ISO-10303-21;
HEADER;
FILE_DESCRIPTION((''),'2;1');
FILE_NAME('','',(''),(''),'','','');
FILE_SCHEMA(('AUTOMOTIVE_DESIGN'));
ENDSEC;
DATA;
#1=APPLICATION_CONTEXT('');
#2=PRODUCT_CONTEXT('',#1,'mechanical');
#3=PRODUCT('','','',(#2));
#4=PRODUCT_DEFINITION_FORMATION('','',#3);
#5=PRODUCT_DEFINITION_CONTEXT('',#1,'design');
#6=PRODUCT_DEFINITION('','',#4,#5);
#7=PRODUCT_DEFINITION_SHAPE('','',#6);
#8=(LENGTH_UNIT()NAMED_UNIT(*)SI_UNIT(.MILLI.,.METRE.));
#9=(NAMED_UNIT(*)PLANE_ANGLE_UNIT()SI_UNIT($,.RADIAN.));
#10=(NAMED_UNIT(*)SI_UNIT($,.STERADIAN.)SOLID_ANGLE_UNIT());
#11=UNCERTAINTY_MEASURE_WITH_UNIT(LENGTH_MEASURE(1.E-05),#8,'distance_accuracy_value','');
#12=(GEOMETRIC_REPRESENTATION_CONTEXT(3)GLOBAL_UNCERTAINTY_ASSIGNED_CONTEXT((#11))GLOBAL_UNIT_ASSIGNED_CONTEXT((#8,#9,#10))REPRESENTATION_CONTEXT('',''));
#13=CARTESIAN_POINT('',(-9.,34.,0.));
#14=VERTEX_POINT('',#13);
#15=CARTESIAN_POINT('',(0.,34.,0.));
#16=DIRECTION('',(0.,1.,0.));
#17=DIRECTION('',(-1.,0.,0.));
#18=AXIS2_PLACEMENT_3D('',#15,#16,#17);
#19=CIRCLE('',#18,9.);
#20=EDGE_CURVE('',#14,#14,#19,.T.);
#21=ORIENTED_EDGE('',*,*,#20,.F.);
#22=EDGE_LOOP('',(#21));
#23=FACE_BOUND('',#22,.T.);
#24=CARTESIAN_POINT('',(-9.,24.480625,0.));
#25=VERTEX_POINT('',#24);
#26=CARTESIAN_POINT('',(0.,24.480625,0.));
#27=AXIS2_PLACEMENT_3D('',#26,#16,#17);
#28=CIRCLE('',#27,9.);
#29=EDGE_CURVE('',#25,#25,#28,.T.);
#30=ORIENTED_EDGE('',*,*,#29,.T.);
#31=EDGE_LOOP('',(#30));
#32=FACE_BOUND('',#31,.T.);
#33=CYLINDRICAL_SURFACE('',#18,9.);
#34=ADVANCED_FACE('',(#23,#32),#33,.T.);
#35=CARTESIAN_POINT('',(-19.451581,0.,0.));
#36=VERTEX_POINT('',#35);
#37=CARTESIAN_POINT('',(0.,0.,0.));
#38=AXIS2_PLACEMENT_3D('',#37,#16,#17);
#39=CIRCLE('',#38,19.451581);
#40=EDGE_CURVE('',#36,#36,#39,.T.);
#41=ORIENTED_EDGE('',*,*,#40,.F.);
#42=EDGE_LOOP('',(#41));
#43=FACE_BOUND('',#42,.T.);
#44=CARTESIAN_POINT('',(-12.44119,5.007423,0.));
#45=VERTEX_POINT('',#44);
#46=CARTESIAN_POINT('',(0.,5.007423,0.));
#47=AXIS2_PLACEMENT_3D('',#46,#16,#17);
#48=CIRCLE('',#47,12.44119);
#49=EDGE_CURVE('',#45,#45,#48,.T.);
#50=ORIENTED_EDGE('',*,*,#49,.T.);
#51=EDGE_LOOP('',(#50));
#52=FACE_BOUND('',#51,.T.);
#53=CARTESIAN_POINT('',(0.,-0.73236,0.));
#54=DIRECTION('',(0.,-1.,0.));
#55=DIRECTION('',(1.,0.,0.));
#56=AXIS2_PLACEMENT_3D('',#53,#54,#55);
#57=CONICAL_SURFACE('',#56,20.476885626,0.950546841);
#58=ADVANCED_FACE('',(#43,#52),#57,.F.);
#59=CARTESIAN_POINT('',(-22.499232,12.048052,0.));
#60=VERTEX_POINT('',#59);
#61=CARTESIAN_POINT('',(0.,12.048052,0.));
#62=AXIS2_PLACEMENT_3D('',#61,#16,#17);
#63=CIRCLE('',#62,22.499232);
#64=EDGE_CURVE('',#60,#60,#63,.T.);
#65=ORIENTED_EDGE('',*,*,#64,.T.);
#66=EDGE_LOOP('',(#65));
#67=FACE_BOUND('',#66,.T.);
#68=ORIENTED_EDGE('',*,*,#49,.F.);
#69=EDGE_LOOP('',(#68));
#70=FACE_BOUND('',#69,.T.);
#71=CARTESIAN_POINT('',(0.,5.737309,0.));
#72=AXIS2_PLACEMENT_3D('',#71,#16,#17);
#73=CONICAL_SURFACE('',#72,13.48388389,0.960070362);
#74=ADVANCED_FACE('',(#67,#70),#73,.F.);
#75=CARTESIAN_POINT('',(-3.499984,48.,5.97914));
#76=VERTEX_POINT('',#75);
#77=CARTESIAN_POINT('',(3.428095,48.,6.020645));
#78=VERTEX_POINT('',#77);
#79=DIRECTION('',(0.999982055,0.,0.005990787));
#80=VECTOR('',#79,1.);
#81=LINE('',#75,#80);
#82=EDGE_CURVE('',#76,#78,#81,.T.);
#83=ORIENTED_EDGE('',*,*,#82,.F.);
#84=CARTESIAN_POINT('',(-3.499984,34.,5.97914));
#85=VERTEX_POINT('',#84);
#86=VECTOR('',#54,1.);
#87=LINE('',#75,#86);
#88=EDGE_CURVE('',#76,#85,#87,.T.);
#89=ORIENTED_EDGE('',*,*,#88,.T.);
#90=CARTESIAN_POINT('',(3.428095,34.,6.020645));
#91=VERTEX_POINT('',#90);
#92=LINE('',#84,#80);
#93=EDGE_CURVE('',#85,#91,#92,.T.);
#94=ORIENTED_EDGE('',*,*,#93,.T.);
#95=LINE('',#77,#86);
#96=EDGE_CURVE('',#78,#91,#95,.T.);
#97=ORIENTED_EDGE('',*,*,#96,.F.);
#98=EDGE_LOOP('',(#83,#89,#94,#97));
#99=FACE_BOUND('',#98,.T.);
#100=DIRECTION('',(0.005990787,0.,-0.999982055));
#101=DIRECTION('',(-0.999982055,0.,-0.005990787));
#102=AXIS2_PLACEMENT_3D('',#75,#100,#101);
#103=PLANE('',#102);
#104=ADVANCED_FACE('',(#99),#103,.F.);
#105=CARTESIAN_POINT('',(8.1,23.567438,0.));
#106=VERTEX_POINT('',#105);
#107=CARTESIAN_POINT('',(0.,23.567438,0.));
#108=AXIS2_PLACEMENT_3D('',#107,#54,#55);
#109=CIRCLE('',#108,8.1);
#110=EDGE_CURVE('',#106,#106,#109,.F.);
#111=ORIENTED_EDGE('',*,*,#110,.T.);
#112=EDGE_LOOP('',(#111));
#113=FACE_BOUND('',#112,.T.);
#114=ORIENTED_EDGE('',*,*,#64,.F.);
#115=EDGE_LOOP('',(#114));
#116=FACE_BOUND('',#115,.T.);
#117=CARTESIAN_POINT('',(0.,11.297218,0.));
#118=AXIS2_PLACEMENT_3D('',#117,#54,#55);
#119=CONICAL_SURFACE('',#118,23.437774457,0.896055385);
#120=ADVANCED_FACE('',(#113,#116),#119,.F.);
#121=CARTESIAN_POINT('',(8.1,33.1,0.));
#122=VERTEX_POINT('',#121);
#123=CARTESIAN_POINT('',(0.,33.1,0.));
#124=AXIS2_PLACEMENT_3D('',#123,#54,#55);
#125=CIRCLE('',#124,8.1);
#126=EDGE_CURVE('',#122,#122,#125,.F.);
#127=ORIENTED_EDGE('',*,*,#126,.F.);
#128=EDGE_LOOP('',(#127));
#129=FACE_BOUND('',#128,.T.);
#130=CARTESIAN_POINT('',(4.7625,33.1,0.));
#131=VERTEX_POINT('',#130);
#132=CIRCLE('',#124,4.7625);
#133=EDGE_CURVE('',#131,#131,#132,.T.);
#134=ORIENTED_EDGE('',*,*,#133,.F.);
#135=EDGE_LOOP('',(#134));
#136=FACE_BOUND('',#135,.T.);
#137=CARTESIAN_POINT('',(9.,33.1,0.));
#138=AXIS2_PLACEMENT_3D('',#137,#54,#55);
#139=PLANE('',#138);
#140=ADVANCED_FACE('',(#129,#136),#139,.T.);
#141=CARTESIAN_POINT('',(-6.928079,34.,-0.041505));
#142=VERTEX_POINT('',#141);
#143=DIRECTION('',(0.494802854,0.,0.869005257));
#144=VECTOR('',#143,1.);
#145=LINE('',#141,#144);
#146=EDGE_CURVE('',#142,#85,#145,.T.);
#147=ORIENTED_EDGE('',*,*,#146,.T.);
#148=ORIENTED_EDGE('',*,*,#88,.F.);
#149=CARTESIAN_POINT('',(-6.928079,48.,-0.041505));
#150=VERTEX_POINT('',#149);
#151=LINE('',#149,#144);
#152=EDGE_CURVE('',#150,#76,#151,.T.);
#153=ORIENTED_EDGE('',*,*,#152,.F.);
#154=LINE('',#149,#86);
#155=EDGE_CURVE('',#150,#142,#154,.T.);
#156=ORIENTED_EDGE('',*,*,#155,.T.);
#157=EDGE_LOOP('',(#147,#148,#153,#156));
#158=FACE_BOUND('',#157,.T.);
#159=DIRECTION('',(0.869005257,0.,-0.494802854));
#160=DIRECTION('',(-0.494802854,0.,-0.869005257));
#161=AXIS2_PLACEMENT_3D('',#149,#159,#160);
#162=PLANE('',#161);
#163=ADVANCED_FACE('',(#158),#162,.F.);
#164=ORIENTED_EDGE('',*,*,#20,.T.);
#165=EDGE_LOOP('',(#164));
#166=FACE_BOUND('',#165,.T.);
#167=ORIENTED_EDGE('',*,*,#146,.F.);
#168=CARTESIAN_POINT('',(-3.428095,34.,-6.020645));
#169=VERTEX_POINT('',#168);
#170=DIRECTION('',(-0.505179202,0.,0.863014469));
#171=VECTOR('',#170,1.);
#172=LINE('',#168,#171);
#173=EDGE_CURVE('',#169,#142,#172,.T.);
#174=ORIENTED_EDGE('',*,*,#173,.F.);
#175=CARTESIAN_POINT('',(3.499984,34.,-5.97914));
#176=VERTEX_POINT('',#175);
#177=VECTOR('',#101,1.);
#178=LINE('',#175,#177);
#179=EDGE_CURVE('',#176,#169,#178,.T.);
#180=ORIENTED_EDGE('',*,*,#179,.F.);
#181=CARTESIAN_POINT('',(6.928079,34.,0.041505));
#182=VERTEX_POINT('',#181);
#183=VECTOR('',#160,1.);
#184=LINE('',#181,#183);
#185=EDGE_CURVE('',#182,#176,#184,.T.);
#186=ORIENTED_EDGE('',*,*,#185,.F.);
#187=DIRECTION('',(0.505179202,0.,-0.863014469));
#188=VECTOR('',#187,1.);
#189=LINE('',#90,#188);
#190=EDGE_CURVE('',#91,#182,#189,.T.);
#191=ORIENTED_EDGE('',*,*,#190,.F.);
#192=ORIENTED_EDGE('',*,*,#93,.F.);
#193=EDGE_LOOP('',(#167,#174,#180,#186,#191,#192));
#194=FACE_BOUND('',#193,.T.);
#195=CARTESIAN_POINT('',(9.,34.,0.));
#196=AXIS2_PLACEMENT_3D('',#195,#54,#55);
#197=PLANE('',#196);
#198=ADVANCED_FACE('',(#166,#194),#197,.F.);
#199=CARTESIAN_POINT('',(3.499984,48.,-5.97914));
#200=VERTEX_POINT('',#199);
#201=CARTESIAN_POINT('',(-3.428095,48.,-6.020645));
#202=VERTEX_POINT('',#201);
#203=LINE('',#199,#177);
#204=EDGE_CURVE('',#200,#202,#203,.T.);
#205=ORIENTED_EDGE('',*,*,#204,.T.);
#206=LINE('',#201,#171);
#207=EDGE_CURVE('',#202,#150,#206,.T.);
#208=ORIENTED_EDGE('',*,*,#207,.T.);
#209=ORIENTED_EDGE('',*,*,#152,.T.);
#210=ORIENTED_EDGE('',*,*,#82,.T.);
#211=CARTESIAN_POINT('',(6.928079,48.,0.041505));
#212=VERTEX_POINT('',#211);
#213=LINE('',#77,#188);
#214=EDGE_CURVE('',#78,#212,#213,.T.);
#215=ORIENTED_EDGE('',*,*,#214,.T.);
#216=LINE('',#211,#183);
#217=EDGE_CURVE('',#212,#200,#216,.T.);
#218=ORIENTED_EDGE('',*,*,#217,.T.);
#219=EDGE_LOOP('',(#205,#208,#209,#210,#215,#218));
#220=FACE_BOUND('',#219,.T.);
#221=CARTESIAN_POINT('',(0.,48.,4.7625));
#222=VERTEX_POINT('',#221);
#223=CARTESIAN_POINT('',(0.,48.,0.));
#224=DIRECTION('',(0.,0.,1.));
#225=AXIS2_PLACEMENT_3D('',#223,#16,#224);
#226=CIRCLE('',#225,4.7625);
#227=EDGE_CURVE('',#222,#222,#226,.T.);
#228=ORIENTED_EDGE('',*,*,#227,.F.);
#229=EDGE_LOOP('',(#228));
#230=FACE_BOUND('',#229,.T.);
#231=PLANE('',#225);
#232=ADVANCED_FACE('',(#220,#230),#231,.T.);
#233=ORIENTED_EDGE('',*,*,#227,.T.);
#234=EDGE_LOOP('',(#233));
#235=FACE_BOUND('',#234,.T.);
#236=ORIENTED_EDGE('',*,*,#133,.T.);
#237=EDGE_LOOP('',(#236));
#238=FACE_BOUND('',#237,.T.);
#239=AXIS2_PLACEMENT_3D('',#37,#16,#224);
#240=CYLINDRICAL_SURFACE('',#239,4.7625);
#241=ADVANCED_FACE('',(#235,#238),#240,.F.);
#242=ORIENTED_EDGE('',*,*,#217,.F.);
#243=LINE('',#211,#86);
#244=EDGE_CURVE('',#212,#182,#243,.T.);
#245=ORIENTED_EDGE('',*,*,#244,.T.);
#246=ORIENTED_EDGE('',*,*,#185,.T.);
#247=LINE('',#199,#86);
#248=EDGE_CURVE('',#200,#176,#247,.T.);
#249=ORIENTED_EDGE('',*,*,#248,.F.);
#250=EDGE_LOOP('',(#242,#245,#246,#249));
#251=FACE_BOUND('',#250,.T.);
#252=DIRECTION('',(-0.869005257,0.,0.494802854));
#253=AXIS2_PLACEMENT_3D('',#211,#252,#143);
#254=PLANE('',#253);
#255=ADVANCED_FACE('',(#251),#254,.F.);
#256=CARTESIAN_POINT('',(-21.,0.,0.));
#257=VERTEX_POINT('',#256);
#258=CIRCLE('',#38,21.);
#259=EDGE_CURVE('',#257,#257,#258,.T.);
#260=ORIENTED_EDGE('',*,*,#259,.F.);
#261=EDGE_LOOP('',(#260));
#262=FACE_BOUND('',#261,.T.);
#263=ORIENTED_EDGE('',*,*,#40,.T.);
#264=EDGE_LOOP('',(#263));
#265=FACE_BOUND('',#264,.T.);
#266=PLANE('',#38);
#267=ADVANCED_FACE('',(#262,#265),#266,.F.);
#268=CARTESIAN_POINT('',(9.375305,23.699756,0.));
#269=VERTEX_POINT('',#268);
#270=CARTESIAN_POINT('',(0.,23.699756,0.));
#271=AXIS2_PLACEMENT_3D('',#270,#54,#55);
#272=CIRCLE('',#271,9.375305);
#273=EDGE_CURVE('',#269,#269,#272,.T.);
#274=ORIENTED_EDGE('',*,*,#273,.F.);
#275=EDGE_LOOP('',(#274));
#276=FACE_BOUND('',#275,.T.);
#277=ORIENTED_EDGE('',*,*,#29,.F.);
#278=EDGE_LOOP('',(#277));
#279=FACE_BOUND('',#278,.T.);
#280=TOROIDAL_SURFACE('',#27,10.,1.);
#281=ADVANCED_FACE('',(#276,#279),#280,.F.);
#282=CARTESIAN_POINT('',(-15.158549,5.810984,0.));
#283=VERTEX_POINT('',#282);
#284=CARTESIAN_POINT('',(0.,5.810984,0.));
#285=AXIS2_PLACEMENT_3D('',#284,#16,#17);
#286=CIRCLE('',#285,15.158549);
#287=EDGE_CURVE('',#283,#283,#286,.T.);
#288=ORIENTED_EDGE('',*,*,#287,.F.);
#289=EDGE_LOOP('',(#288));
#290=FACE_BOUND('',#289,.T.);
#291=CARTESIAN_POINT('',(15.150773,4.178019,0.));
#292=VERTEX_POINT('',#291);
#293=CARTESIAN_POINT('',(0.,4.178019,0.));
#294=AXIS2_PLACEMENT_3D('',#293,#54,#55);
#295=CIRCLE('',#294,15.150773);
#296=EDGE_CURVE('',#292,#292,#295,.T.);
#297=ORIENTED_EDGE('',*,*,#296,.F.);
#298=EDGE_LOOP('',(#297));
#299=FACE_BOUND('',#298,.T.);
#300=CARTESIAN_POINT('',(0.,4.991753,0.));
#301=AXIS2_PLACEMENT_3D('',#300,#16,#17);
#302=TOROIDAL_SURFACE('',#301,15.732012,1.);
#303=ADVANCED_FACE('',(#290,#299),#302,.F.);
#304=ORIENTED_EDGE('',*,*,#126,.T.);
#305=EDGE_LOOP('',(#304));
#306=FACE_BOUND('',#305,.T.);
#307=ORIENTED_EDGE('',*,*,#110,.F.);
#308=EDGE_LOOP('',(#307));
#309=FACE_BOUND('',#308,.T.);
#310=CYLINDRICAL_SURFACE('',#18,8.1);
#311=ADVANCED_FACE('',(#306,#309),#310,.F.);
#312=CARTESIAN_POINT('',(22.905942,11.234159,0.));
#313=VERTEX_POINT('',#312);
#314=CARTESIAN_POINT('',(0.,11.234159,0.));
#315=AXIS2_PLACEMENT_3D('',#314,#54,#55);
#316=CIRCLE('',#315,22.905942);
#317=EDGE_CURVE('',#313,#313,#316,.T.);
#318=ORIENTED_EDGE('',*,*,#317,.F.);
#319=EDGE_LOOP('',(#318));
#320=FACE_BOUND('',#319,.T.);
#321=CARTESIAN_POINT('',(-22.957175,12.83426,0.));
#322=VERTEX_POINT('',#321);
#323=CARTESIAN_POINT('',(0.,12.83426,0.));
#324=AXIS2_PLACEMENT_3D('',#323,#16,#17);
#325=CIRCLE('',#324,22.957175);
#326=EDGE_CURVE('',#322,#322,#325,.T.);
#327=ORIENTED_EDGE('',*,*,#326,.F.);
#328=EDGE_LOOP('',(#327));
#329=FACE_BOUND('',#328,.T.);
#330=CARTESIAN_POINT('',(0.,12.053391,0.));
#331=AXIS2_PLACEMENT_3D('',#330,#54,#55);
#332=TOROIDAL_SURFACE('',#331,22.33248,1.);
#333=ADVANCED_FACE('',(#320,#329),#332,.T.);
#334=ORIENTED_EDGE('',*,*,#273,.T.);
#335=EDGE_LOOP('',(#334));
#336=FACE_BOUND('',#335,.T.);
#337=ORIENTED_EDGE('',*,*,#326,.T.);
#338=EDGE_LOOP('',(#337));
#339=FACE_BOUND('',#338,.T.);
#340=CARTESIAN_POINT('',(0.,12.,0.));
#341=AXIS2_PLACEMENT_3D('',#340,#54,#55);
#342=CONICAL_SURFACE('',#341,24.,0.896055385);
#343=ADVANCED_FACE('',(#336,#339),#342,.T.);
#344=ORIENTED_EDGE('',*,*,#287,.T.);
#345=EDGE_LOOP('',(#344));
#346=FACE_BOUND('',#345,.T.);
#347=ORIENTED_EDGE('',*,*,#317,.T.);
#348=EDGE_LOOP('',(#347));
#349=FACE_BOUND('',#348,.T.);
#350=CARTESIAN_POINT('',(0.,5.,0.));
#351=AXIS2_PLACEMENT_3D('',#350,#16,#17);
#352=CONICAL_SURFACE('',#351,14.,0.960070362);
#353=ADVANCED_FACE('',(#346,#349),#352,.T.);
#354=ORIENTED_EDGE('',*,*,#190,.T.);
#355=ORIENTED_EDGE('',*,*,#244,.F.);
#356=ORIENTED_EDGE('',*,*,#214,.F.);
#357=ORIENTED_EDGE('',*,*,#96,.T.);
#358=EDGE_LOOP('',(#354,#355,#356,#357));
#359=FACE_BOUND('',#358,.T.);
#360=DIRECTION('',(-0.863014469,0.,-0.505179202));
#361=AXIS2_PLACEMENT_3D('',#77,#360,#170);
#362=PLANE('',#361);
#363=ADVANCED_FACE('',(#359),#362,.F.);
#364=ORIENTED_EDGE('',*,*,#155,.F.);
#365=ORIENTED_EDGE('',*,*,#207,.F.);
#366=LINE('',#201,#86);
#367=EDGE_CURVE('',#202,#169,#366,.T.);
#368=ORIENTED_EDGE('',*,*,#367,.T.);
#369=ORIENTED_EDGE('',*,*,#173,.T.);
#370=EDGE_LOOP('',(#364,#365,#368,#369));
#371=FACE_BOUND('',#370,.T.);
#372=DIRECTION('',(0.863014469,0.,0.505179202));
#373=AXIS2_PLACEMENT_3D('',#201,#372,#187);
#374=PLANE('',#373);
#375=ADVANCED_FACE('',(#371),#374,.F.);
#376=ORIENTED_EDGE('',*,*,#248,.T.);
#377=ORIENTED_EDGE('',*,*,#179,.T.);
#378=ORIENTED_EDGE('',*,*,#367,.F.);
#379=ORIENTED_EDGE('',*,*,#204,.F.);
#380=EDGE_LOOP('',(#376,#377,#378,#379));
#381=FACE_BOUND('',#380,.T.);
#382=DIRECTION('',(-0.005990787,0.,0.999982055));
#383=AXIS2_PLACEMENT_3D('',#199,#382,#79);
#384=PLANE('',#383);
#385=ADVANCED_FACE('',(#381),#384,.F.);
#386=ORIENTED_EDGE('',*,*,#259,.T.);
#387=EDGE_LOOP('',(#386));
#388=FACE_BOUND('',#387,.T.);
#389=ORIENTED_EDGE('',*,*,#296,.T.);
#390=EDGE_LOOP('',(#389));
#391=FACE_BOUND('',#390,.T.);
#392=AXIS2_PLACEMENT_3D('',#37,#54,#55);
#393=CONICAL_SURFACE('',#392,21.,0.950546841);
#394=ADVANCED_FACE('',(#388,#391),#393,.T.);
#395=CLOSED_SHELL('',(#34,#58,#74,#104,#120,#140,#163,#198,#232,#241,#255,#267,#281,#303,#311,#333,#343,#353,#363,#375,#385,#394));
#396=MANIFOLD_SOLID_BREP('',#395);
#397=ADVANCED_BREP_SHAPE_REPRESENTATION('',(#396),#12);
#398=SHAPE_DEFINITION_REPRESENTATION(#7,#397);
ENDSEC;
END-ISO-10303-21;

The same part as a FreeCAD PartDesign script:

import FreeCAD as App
import Part
import Sketcher


def edges_at(feature, points):
    """Names of the edges that pass closest to the given points."""
    edges = feature.Shape.Edges
    near = lambda p: min(range(len(edges)), key=lambda i: edges[i].distToShape(Part.Vertex(*p))[0])
    return sorted({f"Edge{near(p) + 1}" for p in points})


def faces_at(feature, points):
    """Names of the faces that lie closest to the given points."""
    faces = feature.Shape.Faces
    near = lambda p: min(range(len(faces)), key=lambda i: faces[i].distToShape(Part.Vertex(*p))[0])
    return sorted({f"Face{near(p) + 1}" for p in points})

doc = App.newDocument("Part")
body = doc.addObject("PartDesign::Body", "Body")

sketch1 = body.newObject("Sketcher::SketchObject", "Sketch")
sketch1.AttachmentSupport = (doc.getObject("XY_Plane"), [""])
sketch1.MapMode = "FlatFace"
sketch1.addGeometry([
    Part.LineSegment(App.Vector(0, 0, 0), App.Vector(21, 0, 0)),
    Part.LineSegment(App.Vector(21, 0, 0), App.Vector(14, 5, 0)),
    Part.LineSegment(App.Vector(14, 5, 0), App.Vector(24, 12, 0)),
    Part.LineSegment(App.Vector(24, 12, 0), App.Vector(9, 24, 0)),
    Part.LineSegment(App.Vector(9, 24, 0), App.Vector(9, 34, 0)),
    Part.LineSegment(App.Vector(9, 34, 0), App.Vector(0, 34, 0)),
    Part.LineSegment(App.Vector(0, 34, 0), App.Vector(0, 0, 0)),
], False)
sketch1.addConstraint([
    Sketcher.Constraint("Coincident", 0, 2, 1, 1),
    Sketcher.Constraint("Coincident", 1, 2, 2, 1),
    Sketcher.Constraint("Coincident", 2, 2, 3, 1),
    Sketcher.Constraint("Coincident", 3, 2, 4, 1),
    Sketcher.Constraint("Coincident", 4, 2, 5, 1),
    Sketcher.Constraint("Coincident", 5, 2, 6, 1),
    Sketcher.Constraint("Coincident", 6, 2, 0, 1),
    Sketcher.Constraint("Horizontal", 0),
    Sketcher.Constraint("Vertical", 4),
    Sketcher.Constraint("Horizontal", 5),
    Sketcher.Constraint("Vertical", 6),
    Sketcher.Constraint("Coincident", 6, 2, -1, 1),
    Sketcher.Constraint("DistanceX", 0, 1, 0, 2, 21.0),
    Sketcher.Constraint("DistanceX", 5, 2, 5, 1, 9.0),
    Sketcher.Constraint("DistanceY", 4, 1, 4, 2, 10.0),
    Sketcher.Constraint("DistanceY", 6, 2, 6, 1, 34.0),
    Sketcher.Constraint("DistanceX", -1, 1, 1, 2, 14.0),
    Sketcher.Constraint("DistanceY", -1, 1, 1, 2, 5.0),
    Sketcher.Constraint("DistanceX", -1, 1, 2, 2, 24.0),
    Sketcher.Constraint("DistanceY", -1, 1, 2, 2, 12.0),
])
revolution = body.newObject("PartDesign::Revolution", "Revolution")
revolution.Profile = sketch1
revolution.ReferenceAxis = (sketch1, ["V_Axis"])
revolution.Angle = 360
doc.recompute()

thickness = body.newObject("PartDesign::Thickness", "Thickness")
thickness.Base = (revolution, faces_at(revolution, [(0, 0, 0)]))
thickness.Value = 0.9
thickness.Reversed = True
thickness.Join = "Intersection"
doc.recompute()

fillet = body.newObject("PartDesign::Fillet", "Fillet")
fillet.Base = (thickness, edges_at(thickness, [(9, 24, 0), (24, 12, 0), (14, 5, 0)]))
fillet.Radius = 1

sketch2 = body.newObject("Sketcher::SketchObject", "Sketch001")
sketch2.AttachmentSupport = (doc.getObject("XZ_Plane"), [""])
sketch2.MapMode = "FlatFace"
sketch2.AttachmentOffset = App.Placement(App.Vector(0, 0, -34), App.Rotation())
sketch2.addGeometry([
    Part.LineSegment(App.Vector(3.499984, -5.97914, 0), App.Vector(-3.428095, -6.020645, 0)),
    Part.LineSegment(App.Vector(-3.428095, -6.020645, 0), App.Vector(-6.928079, -0.041505, 0)),
    Part.LineSegment(App.Vector(-6.928079, -0.041505, 0), App.Vector(-3.499984, 5.97914, 0)),
    Part.LineSegment(App.Vector(-3.499984, 5.97914, 0), App.Vector(3.428095, 6.020645, 0)),
    Part.LineSegment(App.Vector(3.428095, 6.020645, 0), App.Vector(6.928079, 0.041505, 0)),
    Part.LineSegment(App.Vector(6.928079, 0.041505, 0), App.Vector(3.499984, -5.97914, 0)),
], False)
sketch2.addConstraint([
    Sketcher.Constraint("Coincident", 0, 2, 1, 1),
    Sketcher.Constraint("Coincident", 1, 2, 2, 1),
    Sketcher.Constraint("Coincident", 2, 2, 3, 1),
    Sketcher.Constraint("Coincident", 3, 2, 4, 1),
    Sketcher.Constraint("Coincident", 4, 2, 5, 1),
    Sketcher.Constraint("Coincident", 5, 2, 0, 1),
    Sketcher.Constraint("Symmetric", 0, 2, 3, 2, -1, 1),
    Sketcher.Constraint("Symmetric", 1, 2, 4, 2, -1, 1),
    Sketcher.Constraint("Symmetric", 2, 2, 5, 2, -1, 1),
    Sketcher.Constraint("Equal", 0, 1),
    Sketcher.Constraint("Equal", 1, 2),
    Sketcher.Constraint("DistanceX", 1, 2, -1, 1, 6.928079),
    Sketcher.Constraint("DistanceY", -1, 1, 2, 2, 5.97914),
    Sketcher.Constraint("DistanceY", 0, 2, 1, 2, 5.97914),
    Sketcher.Constraint("DistanceX", 2, 2, 0, 2, 0.071889),
])
pad1 = body.newObject("PartDesign::Pad", "Pad")
pad1.Profile = sketch2
pad1.Length = 14
pad1.Reversed = True

sketch3 = body.newObject("Sketcher::SketchObject", "Sketch002")
sketch3.AttachmentSupport = (doc.getObject("XZ_Plane"), [""])
sketch3.MapMode = "FlatFace"
sketch3.AttachmentOffset = App.Placement(App.Vector(0, 0, -48), App.Rotation())
sketch3.addGeometry(Part.Circle(App.Vector(0, 0, 0), App.Vector(0, 0, 1), 4.7625), False)
sketch3.addConstraint([
    Sketcher.Constraint("Coincident", 0, 3, -1, 1),
    Sketcher.Constraint("Diameter", 0, 9.525),
])
pocket1 = body.newObject("PartDesign::Pocket", "Pocket")
pocket1.Profile = sketch3
pocket1.Type = "ThroughAll"
pocket1.Reversed = True

doc.recompute()
